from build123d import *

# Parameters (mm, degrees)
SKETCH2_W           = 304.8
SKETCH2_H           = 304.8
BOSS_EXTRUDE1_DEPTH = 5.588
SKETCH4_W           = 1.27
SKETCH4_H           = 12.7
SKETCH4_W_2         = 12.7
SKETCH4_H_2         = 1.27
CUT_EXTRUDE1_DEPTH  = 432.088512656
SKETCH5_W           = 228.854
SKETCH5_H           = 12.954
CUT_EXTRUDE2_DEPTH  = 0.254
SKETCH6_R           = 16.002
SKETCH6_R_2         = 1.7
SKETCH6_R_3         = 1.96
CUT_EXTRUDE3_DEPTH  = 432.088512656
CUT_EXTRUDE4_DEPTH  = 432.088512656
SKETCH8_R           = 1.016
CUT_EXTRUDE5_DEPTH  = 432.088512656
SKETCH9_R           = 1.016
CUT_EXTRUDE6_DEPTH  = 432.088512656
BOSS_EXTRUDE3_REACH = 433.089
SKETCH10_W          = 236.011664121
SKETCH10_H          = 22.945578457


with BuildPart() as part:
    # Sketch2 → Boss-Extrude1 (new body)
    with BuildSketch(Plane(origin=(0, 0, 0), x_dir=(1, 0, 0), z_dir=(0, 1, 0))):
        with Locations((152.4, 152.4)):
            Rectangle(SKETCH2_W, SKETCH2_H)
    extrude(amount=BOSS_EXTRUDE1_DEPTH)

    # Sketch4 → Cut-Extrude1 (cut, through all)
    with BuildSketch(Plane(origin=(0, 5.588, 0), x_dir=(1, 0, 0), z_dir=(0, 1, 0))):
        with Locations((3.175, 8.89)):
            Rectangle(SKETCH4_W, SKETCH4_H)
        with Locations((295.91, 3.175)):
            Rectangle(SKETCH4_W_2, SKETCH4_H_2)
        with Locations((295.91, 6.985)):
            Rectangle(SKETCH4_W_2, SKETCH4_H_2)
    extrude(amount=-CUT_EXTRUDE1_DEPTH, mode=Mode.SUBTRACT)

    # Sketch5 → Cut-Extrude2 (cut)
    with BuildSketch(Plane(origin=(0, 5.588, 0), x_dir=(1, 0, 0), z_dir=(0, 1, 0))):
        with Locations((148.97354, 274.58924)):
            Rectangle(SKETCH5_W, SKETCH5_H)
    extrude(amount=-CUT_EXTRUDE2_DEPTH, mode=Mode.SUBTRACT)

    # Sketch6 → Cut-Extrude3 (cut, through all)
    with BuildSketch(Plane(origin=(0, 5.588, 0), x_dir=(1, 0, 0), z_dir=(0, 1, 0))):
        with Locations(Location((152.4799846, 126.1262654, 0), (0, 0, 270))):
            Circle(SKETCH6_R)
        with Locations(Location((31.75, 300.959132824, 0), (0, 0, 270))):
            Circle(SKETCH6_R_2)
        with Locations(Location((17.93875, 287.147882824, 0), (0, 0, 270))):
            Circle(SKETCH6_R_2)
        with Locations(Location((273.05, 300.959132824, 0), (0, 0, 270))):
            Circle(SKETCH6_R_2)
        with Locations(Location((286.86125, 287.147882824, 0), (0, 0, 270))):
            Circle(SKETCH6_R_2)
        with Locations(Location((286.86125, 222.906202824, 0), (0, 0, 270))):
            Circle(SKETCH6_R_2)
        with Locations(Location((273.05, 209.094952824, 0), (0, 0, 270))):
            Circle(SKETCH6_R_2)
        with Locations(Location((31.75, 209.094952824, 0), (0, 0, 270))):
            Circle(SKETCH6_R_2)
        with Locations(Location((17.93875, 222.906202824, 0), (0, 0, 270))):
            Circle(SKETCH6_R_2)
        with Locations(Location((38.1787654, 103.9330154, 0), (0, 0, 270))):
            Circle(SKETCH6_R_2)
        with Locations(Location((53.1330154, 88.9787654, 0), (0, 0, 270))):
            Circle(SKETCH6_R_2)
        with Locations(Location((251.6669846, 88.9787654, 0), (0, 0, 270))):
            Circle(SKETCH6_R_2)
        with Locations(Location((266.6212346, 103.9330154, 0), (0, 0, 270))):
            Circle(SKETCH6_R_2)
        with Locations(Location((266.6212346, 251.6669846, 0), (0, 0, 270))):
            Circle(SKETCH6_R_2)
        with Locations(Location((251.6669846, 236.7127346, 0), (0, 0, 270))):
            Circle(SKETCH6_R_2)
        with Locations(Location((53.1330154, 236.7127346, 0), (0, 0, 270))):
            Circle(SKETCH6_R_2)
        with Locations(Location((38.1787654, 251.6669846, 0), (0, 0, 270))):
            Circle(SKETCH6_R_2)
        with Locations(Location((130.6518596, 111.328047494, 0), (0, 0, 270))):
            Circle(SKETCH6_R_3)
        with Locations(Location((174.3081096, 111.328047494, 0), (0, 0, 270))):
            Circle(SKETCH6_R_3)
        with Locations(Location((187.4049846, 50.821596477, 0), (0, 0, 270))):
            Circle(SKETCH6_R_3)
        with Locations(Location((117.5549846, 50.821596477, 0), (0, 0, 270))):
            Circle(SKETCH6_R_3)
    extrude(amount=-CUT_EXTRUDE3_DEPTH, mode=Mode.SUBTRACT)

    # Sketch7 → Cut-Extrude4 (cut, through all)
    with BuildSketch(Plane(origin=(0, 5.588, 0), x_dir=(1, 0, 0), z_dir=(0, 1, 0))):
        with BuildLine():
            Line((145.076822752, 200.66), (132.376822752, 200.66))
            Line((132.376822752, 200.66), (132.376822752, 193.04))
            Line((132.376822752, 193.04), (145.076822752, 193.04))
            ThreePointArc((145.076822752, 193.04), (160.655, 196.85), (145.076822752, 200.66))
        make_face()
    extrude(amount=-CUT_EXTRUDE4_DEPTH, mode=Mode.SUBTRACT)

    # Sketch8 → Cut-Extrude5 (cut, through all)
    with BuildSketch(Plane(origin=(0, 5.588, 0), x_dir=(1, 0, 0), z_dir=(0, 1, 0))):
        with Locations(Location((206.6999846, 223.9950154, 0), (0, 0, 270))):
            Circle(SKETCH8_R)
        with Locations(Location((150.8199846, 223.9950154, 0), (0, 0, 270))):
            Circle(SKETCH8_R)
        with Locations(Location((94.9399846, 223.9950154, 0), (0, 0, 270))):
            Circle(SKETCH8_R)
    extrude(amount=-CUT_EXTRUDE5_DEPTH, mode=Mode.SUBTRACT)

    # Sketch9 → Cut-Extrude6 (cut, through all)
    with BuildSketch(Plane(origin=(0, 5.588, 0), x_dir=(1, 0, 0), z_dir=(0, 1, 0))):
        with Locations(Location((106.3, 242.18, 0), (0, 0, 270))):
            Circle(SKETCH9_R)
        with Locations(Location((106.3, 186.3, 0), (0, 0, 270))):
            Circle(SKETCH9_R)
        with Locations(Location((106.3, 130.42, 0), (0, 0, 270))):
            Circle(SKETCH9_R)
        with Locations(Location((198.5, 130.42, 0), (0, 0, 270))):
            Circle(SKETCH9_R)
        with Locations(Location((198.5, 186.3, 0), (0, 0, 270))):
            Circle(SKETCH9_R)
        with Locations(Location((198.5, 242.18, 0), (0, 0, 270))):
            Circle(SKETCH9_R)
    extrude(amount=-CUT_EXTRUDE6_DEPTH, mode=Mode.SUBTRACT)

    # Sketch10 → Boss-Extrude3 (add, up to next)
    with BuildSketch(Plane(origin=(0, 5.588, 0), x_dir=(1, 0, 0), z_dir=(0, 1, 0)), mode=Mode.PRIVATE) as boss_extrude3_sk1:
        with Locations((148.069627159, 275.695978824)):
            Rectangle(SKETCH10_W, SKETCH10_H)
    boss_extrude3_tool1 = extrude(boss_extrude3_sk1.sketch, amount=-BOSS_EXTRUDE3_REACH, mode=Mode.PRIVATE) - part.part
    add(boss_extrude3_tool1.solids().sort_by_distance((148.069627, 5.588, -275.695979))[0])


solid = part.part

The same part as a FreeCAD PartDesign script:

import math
import FreeCAD as App
import Part
import Sketcher
Q = App.Units.Quantity

doc = App.newDocument("Part")
body = doc.addObject("PartDesign::Body", "Body")

# Sketch on XZ plane
sketch1 = doc.addObject("Sketcher::SketchObject", "Sketch")
body.addObject(sketch1)
sketch1.AttachmentSupport = (doc.XZ_Plane, [""])
sketch1.MapMode = "FlatFace"
sketch1.addGeometry(Part.LineSegment(App.Vector(0, -304.8, 0), App.Vector(0, 0, 0)), False)
sketch1.addGeometry(Part.LineSegment(App.Vector(0, 0, 0), App.Vector(304.8, 0, 0)), False)
sketch1.addGeometry(Part.LineSegment(App.Vector(304.8, 0, 0), App.Vector(304.8, -304.8, 0)), False)
sketch1.addGeometry(Part.LineSegment(App.Vector(304.8, -304.8, 0), App.Vector(0, -304.8, 0)), False)
sketch1.addConstraint(Sketcher.Constraint("Coincident", 0, 2, 1, 1))
sketch1.addConstraint(Sketcher.Constraint("Coincident", 1, 2, 2, 1))
sketch1.addConstraint(Sketcher.Constraint("Coincident", 2, 2, 3, 1))
sketch1.addConstraint(Sketcher.Constraint("Coincident", 3, 2, 0, 1))
sketch1.addConstraint(Sketcher.Constraint("Vertical", 0))
sketch1.addConstraint(Sketcher.Constraint("Horizontal", 1))
sketch1.addConstraint(Sketcher.Constraint("Vertical", 2))
sketch1.addConstraint(Sketcher.Constraint("Horizontal", 3))
sketch1.addConstraint(Sketcher.Constraint("Coincident", 0, 2, -1, 1))
sketch1.addConstraint(Sketcher.Constraint("Equal", 3, 0))
sketch1.addConstraint(Sketcher.Constraint("DistanceX", 1, 1, 1, 2, Q("12 in")))
pad1 = doc.addObject("PartDesign::Pad", "Pad")
body.addObject(pad1)
pad1.Profile = sketch1
pad1.Length = Q("0.22 in")
pad1.Reversed = True

# Sketch on XZ plane
sketch2 = doc.addObject("Sketcher::SketchObject", "Sketch001")
body.addObject(sketch2)
sketch2.AttachmentSupport = (doc.XZ_Plane, [""])
sketch2.MapMode = "FlatFace"
sketch2.AttachmentOffset = App.Placement(App.Vector(0, 0, -0.22 * 25.4), App.Rotation())
sketch2.addGeometry(Part.LineSegment(App.Vector(2.54, -15.24, 0), App.Vector(2.54, -2.54, 0)), False)
sketch2.addGeometry(Part.LineSegment(App.Vector(2.54, -2.54, 0), App.Vector(3.81, -2.54, 0)), False)
sketch2.addGeometry(Part.LineSegment(App.Vector(3.81, -2.54, 0), App.Vector(3.81, -15.24, 0)), False)
sketch2.addGeometry(Part.LineSegment(App.Vector(3.81, -15.24, 0), App.Vector(2.54, -15.24, 0)), False)
sketch2.addGeometry(Part.LineSegment(App.Vector(289.56, -3.81, 0), App.Vector(289.56, -2.54, 0)), False)
sketch2.addGeometry(Part.LineSegment(App.Vector(289.56, -2.54, 0), App.Vector(302.26, -2.54, 0)), False)
sketch2.addGeometry(Part.LineSegment(App.Vector(302.26, -2.54, 0), App.Vector(302.26, -3.81, 0)), False)
sketch2.addGeometry(Part.LineSegment(App.Vector(302.26, -3.81, 0), App.Vector(289.56, -3.81, 0)), False)
sketch2.addGeometry(Part.LineSegment(App.Vector(289.56, -7.62, 0), App.Vector(289.56, -6.35, 0)), False)
sketch2.addGeometry(Part.LineSegment(App.Vector(289.56, -6.35, 0), App.Vector(302.26, -6.35, 0)), False)
sketch2.addGeometry(Part.LineSegment(App.Vector(302.26, -6.35, 0), App.Vector(302.26, -7.62, 0)), False)
sketch2.addGeometry(Part.LineSegment(App.Vector(302.26, -7.62, 0), App.Vector(289.56, -7.62, 0)), False)
sketch2.addConstraint(Sketcher.Constraint("Coincident", 0, 2, 1, 1))
sketch2.addConstraint(Sketcher.Constraint("Coincident", 1, 2, 2, 1))
sketch2.addConstraint(Sketcher.Constraint("Coincident", 2, 2, 3, 1))
sketch2.addConstraint(Sketcher.Constraint("Coincident", 3, 2, 0, 1))
sketch2.addConstraint(Sketcher.Constraint("Coincident", 4, 2, 5, 1))
sketch2.addConstraint(Sketcher.Constraint("Coincident", 5, 2, 6, 1))
sketch2.addConstraint(Sketcher.Constraint("Coincident", 6, 2, 7, 1))
sketch2.addConstraint(Sketcher.Constraint("Coincident", 7, 2, 4, 1))
sketch2.addConstraint(Sketcher.Constraint("Coincident", 8, 2, 9, 1))
sketch2.addConstraint(Sketcher.Constraint("Coincident", 9, 2, 10, 1))
sketch2.addConstraint(Sketcher.Constraint("Coincident", 10, 2, 11, 1))
sketch2.addConstraint(Sketcher.Constraint("Coincident", 11, 2, 8, 1))
sketch2.addConstraint(Sketcher.Constraint("Vertical", 0))
sketch2.addConstraint(Sketcher.Constraint("Horizontal", 1))
sketch2.addConstraint(Sketcher.Constraint("Vertical", 2))
sketch2.addConstraint(Sketcher.Constraint("Horizontal", 3))
sketch2.addConstraint(Sketcher.Constraint("Vertical", 4))
sketch2.addConstraint(Sketcher.Constraint("Horizontal", 5))
sketch2.addConstraint(Sketcher.Constraint("Vertical", 6))
sketch2.addConstraint(Sketcher.Constraint("Horizontal", 7))
sketch2.addConstraint(Sketcher.Constraint("Vertical", 8))
sketch2.addConstraint(Sketcher.Constraint("Horizontal", 9))
sketch2.addConstraint(Sketcher.Constraint("Vertical", 10))
sketch2.addConstraint(Sketcher.Constraint("Horizontal", 11))
sketch2.addConstraint(Sketcher.Constraint("Horizontal", 1, 2, 4, 2))
sketch2.addConstraint(Sketcher.Constraint("Vertical", 7, 2, 8, 2))
sketch2.addConstraint(Sketcher.Constraint("Vertical", 6, 2, 9, 2))
sketch2.addConstraint(Sketcher.Constraint("Equal", 11, 0))
sketch2.addConstraint(Sketcher.Constraint("Equal", 3, 4))
sketch2.addConstraint(Sketcher.Constraint("Equal", 6, 8))
sketch2.addConstraint(Sketcher.Constraint("DistanceX", 5, 1, 5, 2, Q("0.5 in")))
sketch2.addConstraint(Sketcher.Constraint("DistanceX", 1, 1, 1, 2, Q("0.05 in")))
sketch2.addConstraint(Sketcher.Constraint("DistanceX", -1, 1, 0, 2, Q("0.1 in")))
sketch2.addConstraint(Sketcher.Constraint("DistanceY", 0, 2, -1, 1, Q("0.1 in")))
sketch2.addConstraint(Sketcher.Constraint("DistanceX", -1, 1, 4, 2, Q("11.4 in")))
sketch2.addConstraint(Sketcher.Constraint("DistanceY", 10, 2, -1, 1, Q("0.3 in")))
pocket1 = doc.addObject("PartDesign::Pocket", "Pocket")
body.addObject(pocket1)
pocket1.Profile = sketch2
pocket1.Type = "ThroughAll"
pocket1.Reversed = True

# Sketch on XZ plane
sketch3 = doc.addObject("Sketcher::SketchObject", "Sketch002")
body.addObject(sketch3)
sketch3.AttachmentSupport = (doc.XZ_Plane, [""])
sketch3.MapMode = "FlatFace"
sketch3.AttachmentOffset = App.Placement(App.Vector(0, 0, -0.22 * 25.4), App.Rotation())
sketch3.addGeometry(Part.LineSegment(App.Vector(34.54654, -281.06624, 0), App.Vector(34.54654, -268.11224, 0)), False)
sketch3.addGeometry(Part.LineSegment(App.Vector(34.54654, -268.11224, 0), App.Vector(263.40054, -268.11224, 0)), False)
sketch3.addGeometry(Part.LineSegment(App.Vector(263.40054, -268.11224, 0), App.Vector(263.40054, -281.06624, 0)), False)
sketch3.addGeometry(Part.LineSegment(App.Vector(263.40054, -281.06624, 0), App.Vector(34.54654, -281.06624, 0)), False)
sketch3.addConstraint(Sketcher.Constraint("Coincident", 0, 2, 1, 1))
sketch3.addConstraint(Sketcher.Constraint("Coincident", 1, 2, 2, 1))
sketch3.addConstraint(Sketcher.Constraint("Coincident", 2, 2, 3, 1))
sketch3.addConstraint(Sketcher.Constraint("Coincident", 3, 2, 0, 1))
sketch3.addConstraint(Sketcher.Constraint("Vertical", 0))
sketch3.addConstraint(Sketcher.Constraint("Horizontal", 1))
sketch3.addConstraint(Sketcher.Constraint("Vertical", 2))
sketch3.addConstraint(Sketcher.Constraint("Horizontal", 3))
sketch3.addConstraint(Sketcher.Constraint("DistanceX", 1, 1, 1, 2, Q("9.01 in")))
sketch3.addConstraint(Sketcher.Constraint("DistanceY", 0, 1, 0, 2, Q("0.51 in")))
sketch3.addConstraint(Sketcher.Constraint("DistanceX", -1, 1, 0, 2, Q("1.3601 in")))
sketch3.addConstraint(Sketcher.Constraint("DistanceY", 0, 2, -1, 1, Q("10.5556 in")))
pocket2 = doc.addObject("PartDesign::Pocket", "Pocket001")
body.addObject(pocket2)
pocket2.Profile = sketch3
pocket2.Length = Q("0.01 in")
pocket2.Reversed = True

# Sketch on XZ plane
sketch4 = doc.addObject("Sketcher::SketchObject", "Sketch003")
body.addObject(sketch4)
sketch4.AttachmentSupport = (doc.XZ_Plane, [""])
sketch4.MapMode = "FlatFace"
sketch4.AttachmentOffset = App.Placement(App.Vector(0, 0, -0.22 * 25.4), App.Rotation())
sketch4.addGeometry(Part.Circle(App.Vector(152.479985, -126.126265, 0), App.Vector(0, 0, 1), 16.002), False)
sketch4.addGeometry(Part.Circle(App.Vector(31.75, -300.959133, 0), App.Vector(0, 0, 1), 1.7), False)
sketch4.addGeometry(Part.Circle(App.Vector(17.93875, -287.147883, 0), App.Vector(0, 0, 1), 1.7), False)
sketch4.addGeometry(Part.Circle(App.Vector(273.05, -300.959133, 0), App.Vector(0, 0, 1), 1.7), False)
sketch4.addGeometry(Part.Circle(App.Vector(286.86125, -287.147883, 0), App.Vector(0, 0, 1), 1.7), False)
sketch4.addGeometry(Part.Circle(App.Vector(286.86125, -222.906203, 0), App.Vector(0, 0, 1), 1.7), False)
sketch4.addGeometry(Part.Circle(App.Vector(273.05, -209.094953, 0), App.Vector(0, 0, 1), 1.7), False)
sketch4.addGeometry(Part.Circle(App.Vector(31.75, -209.094953, 0), App.Vector(0, 0, 1), 1.7), False)
sketch4.addGeometry(Part.Circle(App.Vector(17.93875, -222.906203, 0), App.Vector(0, 0, 1), 1.7), False)
sketch4.addGeometry(Part.Circle(App.Vector(38.178765, -103.933015, 0), App.Vector(0, 0, 1), 1.7), False)
sketch4.addGeometry(Part.Circle(App.Vector(53.133015, -88.978765, 0), App.Vector(0, 0, 1), 1.7), False)
sketch4.addGeometry(Part.Circle(App.Vector(251.666985, -88.978765, 0), App.Vector(0, 0, 1), 1.7), False)
sketch4.addGeometry(Part.Circle(App.Vector(266.621235, -103.933015, 0), App.Vector(0, 0, 1), 1.7), False)
sketch4.addGeometry(Part.Circle(App.Vector(266.621235, -251.666985, 0), App.Vector(0, 0, 1), 1.7), False)
sketch4.addGeometry(Part.Circle(App.Vector(251.666985, -236.712735, 0), App.Vector(0, 0, 1), 1.7), False)
sketch4.addGeometry(Part.Circle(App.Vector(53.133015, -236.712735, 0), App.Vector(0, 0, 1), 1.7), False)
sketch4.addGeometry(Part.Circle(App.Vector(38.178765, -251.666985, 0), App.Vector(0, 0, 1), 1.7), False)
sketch4.addGeometry(Part.Circle(App.Vector(130.65186, -111.328047, 0), App.Vector(0, 0, 1), 1.96), False)
sketch4.addGeometry(Part.Circle(App.Vector(174.30811, -111.328047, 0), App.Vector(0, 0, 1), 1.96), False)
sketch4.addGeometry(Part.Circle(App.Vector(187.404985, -50.821596, 0), App.Vector(0, 0, 1), 1.96), False)
sketch4.addGeometry(Part.Circle(App.Vector(117.554985, -50.821596, 0), App.Vector(0, 0, 1), 1.96), False)
sketch4.addConstraint(Sketcher.Constraint("Equal", 1, 2))
sketch4.addConstraint(Sketcher.Constraint("Equal", 2, 3))
sketch4.addConstraint(Sketcher.Constraint("Equal", 3, 4))
sketch4.addConstraint(Sketcher.Constraint("Equal", 4, 5))
sketch4.addConstraint(Sketcher.Constraint("Equal", 5, 6))
sketch4.addConstraint(Sketcher.Constraint("Equal", 6, 7))
sketch4.addConstraint(Sketcher.Constraint("Equal", 7, 8))
sketch4.addConstraint(Sketcher.Constraint("Equal", 8, 9))
sketch4.addConstraint(Sketcher.Constraint("Equal", 9, 10))
sketch4.addConstraint(Sketcher.Constraint("Equal", 10, 11))
sketch4.addConstraint(Sketcher.Constraint("Equal", 11, 12))
sketch4.addConstraint(Sketcher.Constraint("Equal", 12, 13))
sketch4.addConstraint(Sketcher.Constraint("Equal", 13, 14))
sketch4.addConstraint(Sketcher.Constraint("Equal", 14, 15))
sketch4.addConstraint(Sketcher.Constraint("Equal", 15, 16))
sketch4.addConstraint(Sketcher.Constraint("Equal", 17, 18))
sketch4.addConstraint(Sketcher.Constraint("Equal", 18, 19))
sketch4.addConstraint(Sketcher.Constraint("Equal", 19, 20))
sketch4.addConstraint(Sketcher.Constraint("Horizontal", 1, 3, 3, 3))
sketch4.addConstraint(Sketcher.Constraint("Horizontal", 2, 3, 4, 3))
sketch4.addConstraint(Sketcher.Constraint("Horizontal", 6, 3, 7, 3))
sketch4.addConstraint(Sketcher.Constraint("Horizontal", 5, 3, 8, 3))
sketch4.addConstraint(Sketcher.Constraint("Horizontal", 10, 3, 11, 3))
sketch4.addConstraint(Sketcher.Constraint("Horizontal", 9, 3, 12, 3))
sketch4.addConstraint(Sketcher.Constraint("Horizontal", 14, 3, 15, 3))
sketch4.addConstraint(Sketcher.Constraint("Horizontal", 13, 3, 16, 3))
sketch4.addConstraint(Sketcher.Constraint("Horizontal", 17, 3, 18, 3))
sketch4.addConstraint(Sketcher.Constraint("Horizontal", 19, 3, 20, 3))
sketch4.addConstraint(Sketcher.Constraint("Vertical", 4, 3, 5, 3))
sketch4.addConstraint(Sketcher.Constraint("Vertical", 3, 3, 6, 3))
sketch4.addConstraint(Sketcher.Constraint("Vertical", 1, 3, 7, 3))
sketch4.addConstraint(Sketcher.Constraint("Vertical", 2, 3, 8, 3))
sketch4.addConstraint(Sketcher.Constraint("Vertical", 12, 3, 13, 3))
sketch4.addConstraint(Sketcher.Constraint("Vertical", 11, 3, 14, 3))
sketch4.addConstraint(Sketcher.Constraint("Vertical", 10, 3, 15, 3))
sketch4.addConstraint(Sketcher.Constraint("Vertical", 9, 3, 16, 3))
sketch4.addConstraint(Sketcher.Constraint("Diameter", 0, Q("1.26 in")))
sketch4.addConstraint(Sketcher.Constraint("DistanceX", 1, 3, 3, 3, Q("9.5 in")))
sketch4.addConstraint(Sketcher.Constraint("Diameter", 1, Q("3.4 mm")))
sketch4.addConstraint(Sketcher.Constraint("Diameter", 17, Q("3.92 mm")))
sketch4.addConstraint(Sketcher.Constraint("DistanceX", -1, 1, 1, 3, Q("1.25 in")))
sketch4.addConstraint(Sketcher.Constraint("DistanceX", 19, 3, 11, 3, Q("2.53 in")))
sketch4.addConstraint(Sketcher.Constraint("DistanceX", 20, 3, 19, 3, Q("2.75 in")))
sketch4.addConstraint(Sketcher.Constraint("DistanceX", 0, 3, 11, 3, Q("3.905 in")))
sketch4.addConstraint(Sketcher.Constraint("DistanceX", 17, 3, 0, 3, Q("0.859375 in")))
sketch4.addConstraint(Sketcher.Constraint("DistanceX", 0, 3, 18, 3, Q("0.859375 in")))
sketch4.addConstraint(Sketcher.Constraint("DistanceX", 2, 3, 4, 3, Q("10.5875 in")))
sketch4.addConstraint(Sketcher.Constraint("DistanceY", 4, 3, 5, 3, Q("2.5292 in")))
sketch4.addConstraint(Sketcher.Constraint("DistanceY", 3, 3, 6, 3, Q("3.6167 in")))
sketch4.addConstraint(Sketcher.Constraint("DistanceY", 0, 3, 10, 3, Q("1.4625 in")))
sketch4.addConstraint(Sketcher.Constraint("DistanceY", 4, 3, 13, 3, Q("35.480898 mm")))
sketch4.addConstraint(Sketcher.Constraint("DistanceY", 3, 3, 14, 3, Q("64.246398 mm")))
sketch4.addConstraint(Sketcher.Constraint("DistanceX", -1, 1, 2, 3, Q("17.93875 mm")))
sketch4.addConstraint(Sketcher.Constraint("DistanceX", -1, 1, 17, 3, Q("130.65186 mm")))
sketch4.addConstraint(Sketcher.Constraint("DistanceY", 1, 3, 2, 3, Q("13.81125 mm")))
sketch4.addConstraint(Sketcher.Constraint("DistanceX", 9, 3, 0, 3, Q("114.301219 mm")))
sketch4.addConstraint(Sketcher.Constraint("DistanceY", 0, 3, 9, 3, Q("22.19325 mm")))
sketch4.addConstraint(Sketcher.Constraint("DistanceX", 9, 3, 10, 3, Q("14.95425 mm")))
sketch4.addConstraint(Sketcher.Constraint("DistanceX", 11, 3, 12, 3, Q("14.95425 mm")))
sketch4.addConstraint(Sketcher.Constraint("DistanceY", 13, 3, 12, 3, Q("147.733969 mm")))
sketch4.addConstraint(Sketcher.Constraint("DistanceY", 18, 3, 19, 3, Q("60.506451 mm")))
sketch4.addConstraint(Sketcher.Constraint("DistanceY", 11, 3, 19, 3, Q("38.157169 mm")))
sketch4.addConstraint(Sketcher.Constraint("DistanceY", 0, 3, -1, 1, Q("126.126265 mm")))
pocket3 = doc.addObject("PartDesign::Pocket", "Pocket002")
body.addObject(pocket3)
pocket3.Profile = sketch4
pocket3.Type = "ThroughAll"
pocket3.Reversed = True

# Sketch on XZ plane
sketch5 = doc.addObject("Sketcher::SketchObject", "Sketch004")
body.addObject(sketch5)
sketch5.AttachmentSupport = (doc.XZ_Plane, [""])
sketch5.MapMode = "FlatFace"
sketch5.AttachmentOffset = App.Placement(App.Vector(0, 0, -0.22 * 25.4), App.Rotation())
sketch5.addGeometry(Part.LineSegment(App.Vector(145.076823, -200.66, 0), App.Vector(132.376823, -200.66, 0)), False)
sketch5.addGeometry(Part.LineSegment(App.Vector(132.376823, -200.66, 0), App.Vector(132.376823, -193.04, 0)), False)
sketch5.addGeometry(Part.LineSegment(App.Vector(132.376823, -193.04, 0), App.Vector(145.076823, -193.04, 0)), False)
sketch5.addGeometry(Part.ArcOfCircle(Part.Circle(App.Vector(152.4, -196.85, 0), App.Vector(0, 0, 1), 8.255), math.radians(-152.513574), math.radians(152.513574)), False)
sketch5.addConstraint(Sketcher.Constraint("Coincident", 0, 2, 1, 1))
sketch5.addConstraint(Sketcher.Constraint("Coincident", 1, 2, 2, 1))
sketch5.addConstraint(Sketcher.Constraint("Coincident", 2, 2, 3, 2))
sketch5.addConstraint(Sketcher.Constraint("Coincident", 3, 1, 0, 1))
sketch5.addConstraint(Sketcher.Constraint("Horizontal", 0))
sketch5.addConstraint(Sketcher.Constraint("Vertical", 1))
sketch5.addConstraint(Sketcher.Constraint("Horizontal", 2))
sketch5.addConstraint(Sketcher.Constraint("Vertical", 2, 2, 3, 1))
sketch5.addConstraint(Sketcher.Constraint("DistanceX", 0, 2, 0, 1, Q("0.5 in")))
sketch5.addConstraint(Sketcher.Constraint("DistanceY", 1, 1, 1, 2, Q("0.3 in")))
sketch5.addConstraint(Sketcher.Constraint("DistanceX", -1, 1, 3, 3, Q("6 in")))
sketch5.addConstraint(Sketcher.Constraint("Radius", 3, Q("0.325 in")))
sketch5.addConstraint(Sketcher.Constraint("DistanceY", 0, 2, -1, 1, Q("7.9 in")))
pocket4 = doc.addObject("PartDesign::Pocket", "Pocket003")
body.addObject(pocket4)
pocket4.Profile = sketch5
pocket4.Type = "ThroughAll"
pocket4.Reversed = True

# Sketch on XZ plane
sketch6 = doc.addObject("Sketcher::SketchObject", "Sketch005")
body.addObject(sketch6)
sketch6.AttachmentSupport = (doc.XZ_Plane, [""])
sketch6.MapMode = "FlatFace"
sketch6.AttachmentOffset = App.Placement(App.Vector(0, 0, -0.22 * 25.4), App.Rotation())
sketch6.addGeometry(Part.Circle(App.Vector(206.699985, -223.995015, 0), App.Vector(0, 0, 1), 1.016), False)
sketch6.addGeometry(Part.Circle(App.Vector(150.819985, -223.995015, 0), App.Vector(0, 0, 1), 1.016), False)
sketch6.addGeometry(Part.Circle(App.Vector(94.939985, -223.995015, 0), App.Vector(0, 0, 1), 1.016), False)
sketch6.addConstraint(Sketcher.Constraint("Equal", 0, 1))
sketch6.addConstraint(Sketcher.Constraint("Equal", 1, 2))
sketch6.addConstraint(Sketcher.Constraint("Horizontal", 0, 3, 1, 3))
sketch6.addConstraint(Sketcher.Constraint("Horizontal", 1, 3, 2, 3))
sketch6.addConstraint(Sketcher.Constraint("Diameter", 0, Q("0.08 in")))
sketch6.addConstraint(Sketcher.Constraint("DistanceX", 1, 3, 0, 3, Q("2.2 in")))
sketch6.addConstraint(Sketcher.Constraint("DistanceX", 2, 3, 1, 3, Q("2.2 in")))
sketch6.addConstraint(Sketcher.Constraint("DistanceX", -1, 1, 0, 3, Q("206.699985 mm")))
sketch6.addConstraint(Sketcher.Constraint("DistanceY", 0, 3, -1, 1, Q("223.995015 mm")))
pocket5 = doc.addObject("PartDesign::Pocket", "Pocket004")
body.addObject(pocket5)
pocket5.Profile = sketch6
pocket5.Type = "ThroughAll"
pocket5.Reversed = True

# Sketch on XZ plane
sketch7 = doc.addObject("Sketcher::SketchObject", "Sketch006")
body.addObject(sketch7)
sketch7.AttachmentSupport = (doc.XZ_Plane, [""])
sketch7.MapMode = "FlatFace"
sketch7.AttachmentOffset = App.Placement(App.Vector(0, 0, -0.22 * 25.4), App.Rotation())
sketch7.addGeometry(Part.Circle(App.Vector(106.3, -242.18, 0), App.Vector(0, 0, 1), 1.016), False)
sketch7.addGeometry(Part.Circle(App.Vector(106.3, -186.3, 0), App.Vector(0, 0, 1), 1.016), False)
sketch7.addGeometry(Part.Circle(App.Vector(106.3, -130.42, 0), App.Vector(0, 0, 1), 1.016), False)
sketch7.addGeometry(Part.Circle(App.Vector(198.5, -130.42, 0), App.Vector(0, 0, 1), 1.016), False)
sketch7.addGeometry(Part.Circle(App.Vector(198.5, -186.3, 0), App.Vector(0, 0, 1), 1.016), False)
sketch7.addGeometry(Part.Circle(App.Vector(198.5, -242.18, 0), App.Vector(0, 0, 1), 1.016), False)
sketch7.addConstraint(Sketcher.Constraint("Equal", 0, 1))
sketch7.addConstraint(Sketcher.Constraint("Equal", 1, 2))
sketch7.addConstraint(Sketcher.Constraint("Equal", 2, 3))
sketch7.addConstraint(Sketcher.Constraint("Equal", 3, 4))
sketch7.addConstraint(Sketcher.Constraint("Equal", 4, 5))
sketch7.addConstraint(Sketcher.Constraint("Horizontal", 2, 3, 3, 3))
sketch7.addConstraint(Sketcher.Constraint("Horizontal", 1, 3, 4, 3))
sketch7.addConstraint(Sketcher.Constraint("Horizontal", 0, 3, 5, 3))
sketch7.addConstraint(Sketcher.Constraint("Vertical", 0, 3, 1, 3))
sketch7.addConstraint(Sketcher.Constraint("Vertical", 1, 3, 2, 3))
sketch7.addConstraint(Sketcher.Constraint("Vertical", 3, 3, 4, 3))
sketch7.addConstraint(Sketcher.Constraint("Vertical", 4, 3, 5, 3))
sketch7.addConstraint(Sketcher.Constraint("Diameter", 0, Q("0.08 in")))
sketch7.addConstraint(Sketcher.Constraint("DistanceY", 0, 3, 1, 3, Q("2.2 in")))
sketch7.addConstraint(Sketcher.Constraint("DistanceY", 1, 3, 2, 3, Q("2.2 in")))
sketch7.addConstraint(Sketcher.Constraint("DistanceX", -1, 1, 0, 3, Q("106.3 mm")))
sketch7.addConstraint(Sketcher.Constraint("DistanceY", 0, 3, -1, 1, Q("242.18 mm")))
sketch7.addConstraint(Sketcher.Constraint("DistanceX", -1, 1, 3, 3, Q("198.5 mm")))
pocket6 = doc.addObject("PartDesign::Pocket", "Pocket005")
body.addObject(pocket6)
pocket6.Profile = sketch7
pocket6.Type = "ThroughAll"
pocket6.Reversed = True

# Sketch on XZ plane
sketch8 = doc.addObject("Sketcher::SketchObject", "Sketch007")
body.addObject(sketch8)
sketch8.AttachmentSupport = (doc.XZ_Plane, [""])
sketch8.MapMode = "FlatFace"
sketch8.AttachmentOffset = App.Placement(App.Vector(0, 0, -0.22 * 25.4), App.Rotation())
sketch8.addGeometry(Part.LineSegment(App.Vector(30.063795, -287.168768, 0), App.Vector(30.063795, -264.22319, 0)), False)
sketch8.addGeometry(Part.LineSegment(App.Vector(30.063795, -264.22319, 0), App.Vector(266.075459, -264.22319, 0)), False)
sketch8.addGeometry(Part.LineSegment(App.Vector(266.075459, -264.22319, 0), App.Vector(266.075459, -287.168768, 0)), False)
sketch8.addGeometry(Part.LineSegment(App.Vector(266.075459, -287.168768, 0), App.Vector(30.063795, -287.168768, 0)), False)
sketch8.addConstraint(Sketcher.Constraint("Coincident", 0, 2, 1, 1))
sketch8.addConstraint(Sketcher.Constraint("Coincident", 1, 2, 2, 1))
sketch8.addConstraint(Sketcher.Constraint("Coincident", 2, 2, 3, 1))
sketch8.addConstraint(Sketcher.Constraint("Coincident", 3, 2, 0, 1))
sketch8.addConstraint(Sketcher.Constraint("Vertical", 0))
sketch8.addConstraint(Sketcher.Constraint("Horizontal", 1))
sketch8.addConstraint(Sketcher.Constraint("Vertical", 2))
sketch8.addConstraint(Sketcher.Constraint("Horizontal", 3))
sketch8.addConstraint(Sketcher.Constraint("DistanceY", 0, 1, 0, 2, Q("22.945578 mm")))
sketch8.addConstraint(Sketcher.Constraint("DistanceX", 1, 1, 1, 2, Q("236.011664 mm")))
sketch8.addConstraint(Sketcher.Constraint("DistanceY", 0, 2, -1, 1, Q("264.22319 mm")))
sketch8.addConstraint(Sketcher.Constraint("DistanceX", -1, 1, 1, 2, Q("266.075459 mm")))
pad2 = doc.addObject("PartDesign::Pad", "Pad001")
body.addObject(pad2)
pad2.Profile = sketch8
pad2.Type = "UpToFirst"

doc.recompute()
